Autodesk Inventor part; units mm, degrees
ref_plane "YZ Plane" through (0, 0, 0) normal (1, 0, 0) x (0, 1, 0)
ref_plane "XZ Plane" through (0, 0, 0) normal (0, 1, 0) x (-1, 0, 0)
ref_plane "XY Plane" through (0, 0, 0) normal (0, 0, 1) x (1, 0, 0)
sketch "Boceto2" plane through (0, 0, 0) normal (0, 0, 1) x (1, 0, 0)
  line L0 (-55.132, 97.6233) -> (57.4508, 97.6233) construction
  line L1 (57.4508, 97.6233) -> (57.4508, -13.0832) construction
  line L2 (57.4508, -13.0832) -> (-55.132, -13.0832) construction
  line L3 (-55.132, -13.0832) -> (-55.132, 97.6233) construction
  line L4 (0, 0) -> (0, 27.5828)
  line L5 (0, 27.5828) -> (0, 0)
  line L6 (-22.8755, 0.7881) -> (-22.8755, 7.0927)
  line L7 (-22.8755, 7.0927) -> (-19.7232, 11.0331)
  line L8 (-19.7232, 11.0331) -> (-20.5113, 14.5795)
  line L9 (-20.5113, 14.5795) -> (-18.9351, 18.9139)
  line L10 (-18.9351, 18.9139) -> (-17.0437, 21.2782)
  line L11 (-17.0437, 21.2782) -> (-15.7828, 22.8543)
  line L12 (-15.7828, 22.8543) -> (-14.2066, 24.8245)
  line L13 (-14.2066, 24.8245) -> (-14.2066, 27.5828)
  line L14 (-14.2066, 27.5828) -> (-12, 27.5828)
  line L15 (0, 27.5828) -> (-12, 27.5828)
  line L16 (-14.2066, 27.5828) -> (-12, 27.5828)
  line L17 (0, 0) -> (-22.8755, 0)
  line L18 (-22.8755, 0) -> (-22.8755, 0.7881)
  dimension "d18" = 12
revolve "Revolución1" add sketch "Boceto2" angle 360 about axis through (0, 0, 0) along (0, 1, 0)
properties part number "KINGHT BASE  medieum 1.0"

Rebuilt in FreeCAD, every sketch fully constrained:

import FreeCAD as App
import Part
import Sketcher
from FreeCAD import Vector
Q = App.Units.Quantity

doc = App.newDocument("Part")
body = doc.addObject("PartDesign::Body", "Body")

# Sketch on XY plane
sketch1 = doc.addObject("Sketcher::SketchObject", "Sketch")
body.addObject(sketch1)
sketch1.AttachmentSupport = (doc.XY_Plane, [""])
sketch1.MapMode = "FlatFace"
sketch1.addGeometry([
    Part.LineSegment(Vector(-22.9, 0, 0), Vector(0, 0, 0)),  # 0
    Part.LineSegment(Vector(0, 0, 0), Vector(0, 27.6, 0)),  # 1
    Part.LineSegment(Vector(0, 27.6, 0), Vector(-14.2, 27.6, 0)),  # 2
    Part.LineSegment(Vector(-14.2, 27.6, 0), Vector(-14.2, 24.8, 0)),  # 3
    Part.LineSegment(Vector(-14.2, 24.8, 0), Vector(-15.8, 22.9, 0)),  # 4
    Part.LineSegment(Vector(-15.8, 22.9, 0), Vector(-17, 21.3, 0)),  # 5
    Part.LineSegment(Vector(-17, 21.3, 0), Vector(-18.9, 18.9, 0)),  # 6
    Part.LineSegment(Vector(-18.9, 18.9, 0), Vector(-20.5, 14.6, 0)),  # 7
    Part.LineSegment(Vector(-20.5, 14.6, 0), Vector(-19.7, 11, 0)),  # 8
    Part.LineSegment(Vector(-19.7, 11, 0), Vector(-22.9, 7.1, 0)),  # 9
    Part.LineSegment(Vector(-22.9, 7.1, 0), Vector(-22.9, 0, 0)),  # 10
], False)
sketch1.addConstraint([
    Sketcher.Constraint("Coincident", 0, 2, 1, 1),
    Sketcher.Constraint("Coincident", 1, 2, 2, 1),
    Sketcher.Constraint("Coincident", 2, 2, 3, 1),
    Sketcher.Constraint("Coincident", 3, 2, 4, 1),
    Sketcher.Constraint("Coincident", 4, 2, 5, 1),
    Sketcher.Constraint("Coincident", 5, 2, 6, 1),
    Sketcher.Constraint("Coincident", 6, 2, 7, 1),
    Sketcher.Constraint("Coincident", 7, 2, 8, 1),
    Sketcher.Constraint("Coincident", 8, 2, 9, 1),
    Sketcher.Constraint("Coincident", 9, 2, 10, 1),
    Sketcher.Constraint("Coincident", 10, 2, 0, 1),
    Sketcher.Constraint("Horizontal", 0),
    Sketcher.Constraint("Vertical", 1),
    Sketcher.Constraint("Horizontal", 2),
    Sketcher.Constraint("Vertical", 3),
    Sketcher.Constraint("Vertical", 10),
    Sketcher.Constraint("Coincident", 0, 2, -1, 1),
    Sketcher.Constraint("Parallel", 4, 5),
    Sketcher.Constraint("Parallel", 5, 6),
    Sketcher.Constraint("Parallel", 6, 9),
    Sketcher.Constraint("Angle", 4, Q("-128.6605 deg")),
    Sketcher.Constraint("Angle", 8, Q("-77.471 deg")),
    Sketcher.Constraint("Distance", 4, 2.523),
    Sketcher.Constraint("Distance", 7, 4.612),
    Sketcher.Constraint("Distance", 8, 3.633),
    Sketcher.Constraint("DistanceX", 0, 1, 0, 2, 22.8755),
    Sketcher.Constraint("DistanceX", 2, 2, 2, 1, 14.2066),
    Sketcher.Constraint("DistanceY", 1, 1, 1, 2, 27.5828),
    Sketcher.Constraint("DistanceY", 3, 2, 3, 1, 2.7583),
    Sketcher.Constraint("DistanceY", 10, 2, 10, 1, 7.0927),
    Sketcher.Constraint("DistanceX", 6, 2, -1, 1, 18.935),
    Sketcher.Constraint("DistanceX", 5, 2, 4, 2, 1.261),
])
revolution = doc.addObject("PartDesign::Revolution", "Revolution")
body.addObject(revolution)
revolution.Profile = sketch1
revolution.ReferenceAxis = (sketch1, ["V_Axis"])
revolution.Angle = 360

doc.recompute()
